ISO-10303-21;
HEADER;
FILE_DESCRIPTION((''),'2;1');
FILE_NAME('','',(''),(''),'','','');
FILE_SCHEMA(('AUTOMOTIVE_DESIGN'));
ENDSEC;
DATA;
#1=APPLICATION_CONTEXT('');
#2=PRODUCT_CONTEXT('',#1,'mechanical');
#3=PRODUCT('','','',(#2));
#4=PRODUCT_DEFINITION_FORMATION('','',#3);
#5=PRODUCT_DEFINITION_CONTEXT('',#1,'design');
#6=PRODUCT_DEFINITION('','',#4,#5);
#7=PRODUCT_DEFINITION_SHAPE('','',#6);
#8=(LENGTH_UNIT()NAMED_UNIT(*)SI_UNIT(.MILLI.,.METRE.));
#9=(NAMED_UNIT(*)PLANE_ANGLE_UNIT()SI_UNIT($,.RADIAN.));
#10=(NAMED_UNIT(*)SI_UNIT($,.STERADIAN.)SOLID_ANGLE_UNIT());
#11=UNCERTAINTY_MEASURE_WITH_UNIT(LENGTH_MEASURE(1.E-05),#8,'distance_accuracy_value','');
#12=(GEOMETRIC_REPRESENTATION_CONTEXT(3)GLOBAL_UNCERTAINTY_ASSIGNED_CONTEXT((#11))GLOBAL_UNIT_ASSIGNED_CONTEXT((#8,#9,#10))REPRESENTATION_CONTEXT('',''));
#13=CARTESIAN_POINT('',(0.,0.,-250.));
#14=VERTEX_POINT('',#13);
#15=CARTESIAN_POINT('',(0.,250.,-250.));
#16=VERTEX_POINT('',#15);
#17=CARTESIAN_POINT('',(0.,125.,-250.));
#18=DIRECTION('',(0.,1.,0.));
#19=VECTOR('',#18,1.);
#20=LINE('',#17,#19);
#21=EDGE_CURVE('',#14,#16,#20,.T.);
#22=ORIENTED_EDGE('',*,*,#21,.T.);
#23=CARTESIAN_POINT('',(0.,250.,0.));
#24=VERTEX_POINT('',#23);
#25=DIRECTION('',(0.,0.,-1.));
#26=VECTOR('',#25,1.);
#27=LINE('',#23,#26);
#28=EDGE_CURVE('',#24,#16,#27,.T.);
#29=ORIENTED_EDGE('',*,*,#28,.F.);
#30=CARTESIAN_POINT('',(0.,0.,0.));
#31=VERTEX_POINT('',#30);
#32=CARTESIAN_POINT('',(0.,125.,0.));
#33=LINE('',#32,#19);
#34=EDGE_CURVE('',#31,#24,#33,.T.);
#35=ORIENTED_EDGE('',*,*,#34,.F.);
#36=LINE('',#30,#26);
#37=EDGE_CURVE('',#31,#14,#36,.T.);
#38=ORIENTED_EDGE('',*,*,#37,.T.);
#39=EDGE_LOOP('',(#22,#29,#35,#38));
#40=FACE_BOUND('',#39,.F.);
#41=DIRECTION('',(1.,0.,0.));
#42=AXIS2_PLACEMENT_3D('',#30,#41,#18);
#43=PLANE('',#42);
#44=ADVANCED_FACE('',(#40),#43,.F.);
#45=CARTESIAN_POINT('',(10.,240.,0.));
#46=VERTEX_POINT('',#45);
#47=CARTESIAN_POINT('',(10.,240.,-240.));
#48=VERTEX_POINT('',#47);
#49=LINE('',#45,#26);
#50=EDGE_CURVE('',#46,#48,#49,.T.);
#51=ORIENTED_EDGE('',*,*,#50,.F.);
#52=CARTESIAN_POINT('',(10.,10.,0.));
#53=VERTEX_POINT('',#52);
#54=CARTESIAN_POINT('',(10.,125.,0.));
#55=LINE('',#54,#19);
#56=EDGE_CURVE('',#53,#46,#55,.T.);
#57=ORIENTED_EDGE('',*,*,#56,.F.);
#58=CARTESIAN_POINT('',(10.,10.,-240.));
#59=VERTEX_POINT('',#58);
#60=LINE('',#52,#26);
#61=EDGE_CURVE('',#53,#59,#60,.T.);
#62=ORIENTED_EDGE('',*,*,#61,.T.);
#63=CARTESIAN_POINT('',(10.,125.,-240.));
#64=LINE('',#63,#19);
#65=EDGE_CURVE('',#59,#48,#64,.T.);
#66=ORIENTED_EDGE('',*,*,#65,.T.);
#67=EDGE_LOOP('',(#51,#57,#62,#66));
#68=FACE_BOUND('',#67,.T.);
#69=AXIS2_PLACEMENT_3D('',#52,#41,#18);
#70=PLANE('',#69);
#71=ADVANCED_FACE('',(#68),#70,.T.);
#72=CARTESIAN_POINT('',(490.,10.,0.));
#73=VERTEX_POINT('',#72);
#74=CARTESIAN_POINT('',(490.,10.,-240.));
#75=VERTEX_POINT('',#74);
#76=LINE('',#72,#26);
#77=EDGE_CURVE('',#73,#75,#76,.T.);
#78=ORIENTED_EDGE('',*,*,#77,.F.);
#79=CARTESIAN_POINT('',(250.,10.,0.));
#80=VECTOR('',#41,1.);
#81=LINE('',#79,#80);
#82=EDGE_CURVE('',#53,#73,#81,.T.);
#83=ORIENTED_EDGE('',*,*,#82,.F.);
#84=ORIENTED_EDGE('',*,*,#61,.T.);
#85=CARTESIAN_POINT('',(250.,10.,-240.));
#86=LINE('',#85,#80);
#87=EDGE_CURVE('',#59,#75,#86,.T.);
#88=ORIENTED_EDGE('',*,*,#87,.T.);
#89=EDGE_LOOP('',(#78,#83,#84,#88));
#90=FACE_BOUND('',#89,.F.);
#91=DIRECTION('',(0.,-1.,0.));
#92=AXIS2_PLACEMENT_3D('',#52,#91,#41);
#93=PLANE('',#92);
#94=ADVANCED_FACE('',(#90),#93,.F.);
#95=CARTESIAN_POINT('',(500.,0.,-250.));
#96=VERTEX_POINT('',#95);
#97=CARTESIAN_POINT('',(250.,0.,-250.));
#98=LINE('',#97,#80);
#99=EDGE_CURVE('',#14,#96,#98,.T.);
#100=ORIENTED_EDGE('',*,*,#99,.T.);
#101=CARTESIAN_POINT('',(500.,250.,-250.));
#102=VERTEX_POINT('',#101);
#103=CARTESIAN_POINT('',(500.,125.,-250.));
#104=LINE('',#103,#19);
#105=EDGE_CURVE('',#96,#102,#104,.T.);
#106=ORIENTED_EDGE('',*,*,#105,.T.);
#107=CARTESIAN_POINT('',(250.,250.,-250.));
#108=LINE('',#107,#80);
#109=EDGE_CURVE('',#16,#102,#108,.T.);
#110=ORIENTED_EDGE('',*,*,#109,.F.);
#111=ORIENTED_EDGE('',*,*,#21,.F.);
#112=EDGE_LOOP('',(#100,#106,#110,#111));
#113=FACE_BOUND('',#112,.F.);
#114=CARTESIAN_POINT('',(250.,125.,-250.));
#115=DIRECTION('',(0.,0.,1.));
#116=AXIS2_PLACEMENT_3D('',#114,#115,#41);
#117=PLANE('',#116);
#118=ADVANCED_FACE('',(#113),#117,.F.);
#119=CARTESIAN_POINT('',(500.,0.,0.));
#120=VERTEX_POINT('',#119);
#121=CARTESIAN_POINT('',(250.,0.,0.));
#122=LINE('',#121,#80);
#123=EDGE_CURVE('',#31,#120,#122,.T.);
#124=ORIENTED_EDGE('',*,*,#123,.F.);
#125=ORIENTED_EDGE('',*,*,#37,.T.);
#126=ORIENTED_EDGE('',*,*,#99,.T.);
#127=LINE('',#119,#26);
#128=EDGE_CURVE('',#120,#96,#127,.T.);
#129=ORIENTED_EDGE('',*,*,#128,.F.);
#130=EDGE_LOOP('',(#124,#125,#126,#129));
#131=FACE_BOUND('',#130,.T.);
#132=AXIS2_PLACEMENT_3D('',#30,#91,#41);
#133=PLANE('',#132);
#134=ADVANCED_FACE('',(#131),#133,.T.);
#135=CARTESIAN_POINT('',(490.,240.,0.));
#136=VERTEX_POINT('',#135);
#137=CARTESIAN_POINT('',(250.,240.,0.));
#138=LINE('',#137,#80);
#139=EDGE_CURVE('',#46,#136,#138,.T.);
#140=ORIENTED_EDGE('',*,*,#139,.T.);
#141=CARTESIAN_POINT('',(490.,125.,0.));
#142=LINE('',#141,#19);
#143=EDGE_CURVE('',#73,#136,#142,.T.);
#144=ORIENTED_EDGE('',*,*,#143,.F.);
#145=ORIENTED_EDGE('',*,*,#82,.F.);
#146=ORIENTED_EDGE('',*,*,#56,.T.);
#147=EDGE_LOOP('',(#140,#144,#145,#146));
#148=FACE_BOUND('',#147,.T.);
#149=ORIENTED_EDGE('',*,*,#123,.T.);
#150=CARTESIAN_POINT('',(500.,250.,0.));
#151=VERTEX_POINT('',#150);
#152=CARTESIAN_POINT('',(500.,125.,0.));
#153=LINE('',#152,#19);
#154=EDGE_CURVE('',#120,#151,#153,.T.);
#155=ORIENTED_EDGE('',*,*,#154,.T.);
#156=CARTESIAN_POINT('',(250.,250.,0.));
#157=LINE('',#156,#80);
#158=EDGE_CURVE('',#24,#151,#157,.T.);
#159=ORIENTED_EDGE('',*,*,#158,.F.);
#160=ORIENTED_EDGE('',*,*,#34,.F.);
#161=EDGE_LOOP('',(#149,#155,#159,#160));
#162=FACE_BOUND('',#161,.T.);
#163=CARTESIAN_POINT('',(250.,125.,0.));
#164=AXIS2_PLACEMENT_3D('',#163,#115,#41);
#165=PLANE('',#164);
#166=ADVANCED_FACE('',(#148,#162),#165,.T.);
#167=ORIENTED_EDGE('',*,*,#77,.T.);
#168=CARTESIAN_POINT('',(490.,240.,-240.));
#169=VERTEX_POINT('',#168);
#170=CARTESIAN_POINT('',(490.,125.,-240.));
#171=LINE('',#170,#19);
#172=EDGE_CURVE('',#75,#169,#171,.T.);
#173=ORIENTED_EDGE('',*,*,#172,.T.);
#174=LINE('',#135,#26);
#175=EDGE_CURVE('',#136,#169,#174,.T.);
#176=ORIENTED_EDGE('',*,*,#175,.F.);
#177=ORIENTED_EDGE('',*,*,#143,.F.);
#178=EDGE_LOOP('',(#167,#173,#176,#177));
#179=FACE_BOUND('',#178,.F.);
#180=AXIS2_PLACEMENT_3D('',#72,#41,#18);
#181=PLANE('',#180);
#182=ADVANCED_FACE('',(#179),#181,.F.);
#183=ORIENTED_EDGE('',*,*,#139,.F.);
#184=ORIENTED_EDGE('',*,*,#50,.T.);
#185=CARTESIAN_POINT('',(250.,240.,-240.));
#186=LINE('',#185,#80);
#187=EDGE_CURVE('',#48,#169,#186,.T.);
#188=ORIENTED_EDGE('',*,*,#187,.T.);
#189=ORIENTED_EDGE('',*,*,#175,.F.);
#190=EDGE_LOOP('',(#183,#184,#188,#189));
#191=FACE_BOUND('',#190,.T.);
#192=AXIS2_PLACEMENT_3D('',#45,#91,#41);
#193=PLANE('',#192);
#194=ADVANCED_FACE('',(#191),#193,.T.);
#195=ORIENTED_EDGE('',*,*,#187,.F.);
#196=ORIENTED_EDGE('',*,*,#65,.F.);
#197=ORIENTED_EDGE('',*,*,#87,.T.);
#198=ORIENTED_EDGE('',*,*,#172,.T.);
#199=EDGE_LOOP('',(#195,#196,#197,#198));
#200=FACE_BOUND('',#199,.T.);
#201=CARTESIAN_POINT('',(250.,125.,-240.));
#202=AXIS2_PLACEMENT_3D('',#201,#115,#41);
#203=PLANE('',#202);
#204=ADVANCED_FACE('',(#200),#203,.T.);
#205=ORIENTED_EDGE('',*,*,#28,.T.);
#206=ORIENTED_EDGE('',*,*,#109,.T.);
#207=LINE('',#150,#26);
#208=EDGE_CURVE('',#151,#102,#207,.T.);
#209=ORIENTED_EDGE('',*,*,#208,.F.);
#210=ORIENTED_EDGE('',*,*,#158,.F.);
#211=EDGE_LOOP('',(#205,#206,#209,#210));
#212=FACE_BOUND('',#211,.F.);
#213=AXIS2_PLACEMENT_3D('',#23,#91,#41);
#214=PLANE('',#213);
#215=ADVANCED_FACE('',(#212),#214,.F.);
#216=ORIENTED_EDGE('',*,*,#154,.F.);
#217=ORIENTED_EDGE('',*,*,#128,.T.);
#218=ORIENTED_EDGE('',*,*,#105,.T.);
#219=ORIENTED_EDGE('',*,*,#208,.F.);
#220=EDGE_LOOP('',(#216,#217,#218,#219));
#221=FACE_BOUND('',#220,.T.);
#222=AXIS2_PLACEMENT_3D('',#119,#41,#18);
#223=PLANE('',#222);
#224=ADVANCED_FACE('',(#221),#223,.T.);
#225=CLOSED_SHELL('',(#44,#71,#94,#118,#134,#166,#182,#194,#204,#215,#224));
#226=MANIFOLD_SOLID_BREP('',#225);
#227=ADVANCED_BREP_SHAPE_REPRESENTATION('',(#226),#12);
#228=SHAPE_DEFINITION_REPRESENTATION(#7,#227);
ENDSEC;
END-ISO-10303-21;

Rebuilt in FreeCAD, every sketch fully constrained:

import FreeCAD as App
import Part
import Sketcher
from FreeCAD import Vector
Q = App.Units.Quantity

doc = App.newDocument("Part")
body = doc.addObject("PartDesign::Body", "Body")

sketch1 = body.newObject("Sketcher::SketchObject", "Sketch")
sketch1.AttachmentSupport = (doc.getObject("XY_Plane"), [""])
sketch1.MapMode = "FlatFace"
sketch1.addGeometry(Part.LineSegment(Vector(0, 250, 0), Vector(0, 0, 0)), False)
sketch1.addGeometry(Part.LineSegment(Vector(0, 0, 0), Vector(500, 0, 0)), False)
sketch1.addGeometry(Part.LineSegment(Vector(500, 0, 0), Vector(500, 250, 0)), False)
sketch1.addGeometry(Part.LineSegment(Vector(500, 250, 0), Vector(0, 250, 0)), False)
sketch1.addConstraint(Sketcher.Constraint("Coincident", 0, 2, 1, 1))
sketch1.addConstraint(Sketcher.Constraint("Coincident", 1, 2, 2, 1))
sketch1.addConstraint(Sketcher.Constraint("Coincident", 2, 2, 3, 1))
sketch1.addConstraint(Sketcher.Constraint("Coincident", 3, 2, 0, 1))
sketch1.addConstraint(Sketcher.Constraint("Vertical", 0))
sketch1.addConstraint(Sketcher.Constraint("Horizontal", 1))
sketch1.addConstraint(Sketcher.Constraint("Vertical", 2))
sketch1.addConstraint(Sketcher.Constraint("Horizontal", 3))
sketch1.addConstraint(Sketcher.Constraint("Coincident", 0, 2, -1, 1))
sketch1.addConstraint(Sketcher.Constraint("DistanceX", 1, 1, 1, 2, Q("500 mm")))
sketch1.addConstraint(Sketcher.Constraint("DistanceY", 0, 2, 0, 1, Q("250 mm")))
pad1 = body.newObject("PartDesign::Pad", "Pad")
pad1.Profile = sketch1
pad1.Length = 250
pad1.Reversed = True

sketch2 = body.newObject("Sketcher::SketchObject", "Sketch001")
sketch2.AttachmentSupport = (doc.getObject("XY_Plane"), [""])
sketch2.MapMode = "FlatFace"
sketch2.addGeometry(Part.LineSegment(Vector(10, 240, 0), Vector(10, 10, 0)), False)
sketch2.addGeometry(Part.LineSegment(Vector(10, 10, 0), Vector(490, 10, 0)), False)
sketch2.addGeometry(Part.LineSegment(Vector(490, 10, 0), Vector(490, 240, 0)), False)
sketch2.addGeometry(Part.LineSegment(Vector(490, 240, 0), Vector(10, 240, 0)), False)
sketch2.addConstraint(Sketcher.Constraint("Coincident", 0, 2, 1, 1))
sketch2.addConstraint(Sketcher.Constraint("Coincident", 1, 2, 2, 1))
sketch2.addConstraint(Sketcher.Constraint("Coincident", 2, 2, 3, 1))
sketch2.addConstraint(Sketcher.Constraint("Coincident", 3, 2, 0, 1))
sketch2.addConstraint(Sketcher.Constraint("Vertical", 0))
sketch2.addConstraint(Sketcher.Constraint("Horizontal", 1))
sketch2.addConstraint(Sketcher.Constraint("Vertical", 2))
sketch2.addConstraint(Sketcher.Constraint("Horizontal", 3))
sketch2.addConstraint(Sketcher.Constraint("DistanceX", 1, 1, 1, 2, Q("480 mm")))
sketch2.addConstraint(Sketcher.Constraint("DistanceY", 0, 2, 0, 1, Q("230 mm")))
sketch2.addConstraint(Sketcher.Constraint("DistanceX", -1, 1, 0, 2, Q("10 mm")))
sketch2.addConstraint(Sketcher.Constraint("DistanceY", -1, 1, 0, 2, Q("10 mm")))
pocket1 = body.newObject("PartDesign::Pocket", "Pocket")
pocket1.Profile = sketch2
pocket1.Length = 240

doc.recompute()
